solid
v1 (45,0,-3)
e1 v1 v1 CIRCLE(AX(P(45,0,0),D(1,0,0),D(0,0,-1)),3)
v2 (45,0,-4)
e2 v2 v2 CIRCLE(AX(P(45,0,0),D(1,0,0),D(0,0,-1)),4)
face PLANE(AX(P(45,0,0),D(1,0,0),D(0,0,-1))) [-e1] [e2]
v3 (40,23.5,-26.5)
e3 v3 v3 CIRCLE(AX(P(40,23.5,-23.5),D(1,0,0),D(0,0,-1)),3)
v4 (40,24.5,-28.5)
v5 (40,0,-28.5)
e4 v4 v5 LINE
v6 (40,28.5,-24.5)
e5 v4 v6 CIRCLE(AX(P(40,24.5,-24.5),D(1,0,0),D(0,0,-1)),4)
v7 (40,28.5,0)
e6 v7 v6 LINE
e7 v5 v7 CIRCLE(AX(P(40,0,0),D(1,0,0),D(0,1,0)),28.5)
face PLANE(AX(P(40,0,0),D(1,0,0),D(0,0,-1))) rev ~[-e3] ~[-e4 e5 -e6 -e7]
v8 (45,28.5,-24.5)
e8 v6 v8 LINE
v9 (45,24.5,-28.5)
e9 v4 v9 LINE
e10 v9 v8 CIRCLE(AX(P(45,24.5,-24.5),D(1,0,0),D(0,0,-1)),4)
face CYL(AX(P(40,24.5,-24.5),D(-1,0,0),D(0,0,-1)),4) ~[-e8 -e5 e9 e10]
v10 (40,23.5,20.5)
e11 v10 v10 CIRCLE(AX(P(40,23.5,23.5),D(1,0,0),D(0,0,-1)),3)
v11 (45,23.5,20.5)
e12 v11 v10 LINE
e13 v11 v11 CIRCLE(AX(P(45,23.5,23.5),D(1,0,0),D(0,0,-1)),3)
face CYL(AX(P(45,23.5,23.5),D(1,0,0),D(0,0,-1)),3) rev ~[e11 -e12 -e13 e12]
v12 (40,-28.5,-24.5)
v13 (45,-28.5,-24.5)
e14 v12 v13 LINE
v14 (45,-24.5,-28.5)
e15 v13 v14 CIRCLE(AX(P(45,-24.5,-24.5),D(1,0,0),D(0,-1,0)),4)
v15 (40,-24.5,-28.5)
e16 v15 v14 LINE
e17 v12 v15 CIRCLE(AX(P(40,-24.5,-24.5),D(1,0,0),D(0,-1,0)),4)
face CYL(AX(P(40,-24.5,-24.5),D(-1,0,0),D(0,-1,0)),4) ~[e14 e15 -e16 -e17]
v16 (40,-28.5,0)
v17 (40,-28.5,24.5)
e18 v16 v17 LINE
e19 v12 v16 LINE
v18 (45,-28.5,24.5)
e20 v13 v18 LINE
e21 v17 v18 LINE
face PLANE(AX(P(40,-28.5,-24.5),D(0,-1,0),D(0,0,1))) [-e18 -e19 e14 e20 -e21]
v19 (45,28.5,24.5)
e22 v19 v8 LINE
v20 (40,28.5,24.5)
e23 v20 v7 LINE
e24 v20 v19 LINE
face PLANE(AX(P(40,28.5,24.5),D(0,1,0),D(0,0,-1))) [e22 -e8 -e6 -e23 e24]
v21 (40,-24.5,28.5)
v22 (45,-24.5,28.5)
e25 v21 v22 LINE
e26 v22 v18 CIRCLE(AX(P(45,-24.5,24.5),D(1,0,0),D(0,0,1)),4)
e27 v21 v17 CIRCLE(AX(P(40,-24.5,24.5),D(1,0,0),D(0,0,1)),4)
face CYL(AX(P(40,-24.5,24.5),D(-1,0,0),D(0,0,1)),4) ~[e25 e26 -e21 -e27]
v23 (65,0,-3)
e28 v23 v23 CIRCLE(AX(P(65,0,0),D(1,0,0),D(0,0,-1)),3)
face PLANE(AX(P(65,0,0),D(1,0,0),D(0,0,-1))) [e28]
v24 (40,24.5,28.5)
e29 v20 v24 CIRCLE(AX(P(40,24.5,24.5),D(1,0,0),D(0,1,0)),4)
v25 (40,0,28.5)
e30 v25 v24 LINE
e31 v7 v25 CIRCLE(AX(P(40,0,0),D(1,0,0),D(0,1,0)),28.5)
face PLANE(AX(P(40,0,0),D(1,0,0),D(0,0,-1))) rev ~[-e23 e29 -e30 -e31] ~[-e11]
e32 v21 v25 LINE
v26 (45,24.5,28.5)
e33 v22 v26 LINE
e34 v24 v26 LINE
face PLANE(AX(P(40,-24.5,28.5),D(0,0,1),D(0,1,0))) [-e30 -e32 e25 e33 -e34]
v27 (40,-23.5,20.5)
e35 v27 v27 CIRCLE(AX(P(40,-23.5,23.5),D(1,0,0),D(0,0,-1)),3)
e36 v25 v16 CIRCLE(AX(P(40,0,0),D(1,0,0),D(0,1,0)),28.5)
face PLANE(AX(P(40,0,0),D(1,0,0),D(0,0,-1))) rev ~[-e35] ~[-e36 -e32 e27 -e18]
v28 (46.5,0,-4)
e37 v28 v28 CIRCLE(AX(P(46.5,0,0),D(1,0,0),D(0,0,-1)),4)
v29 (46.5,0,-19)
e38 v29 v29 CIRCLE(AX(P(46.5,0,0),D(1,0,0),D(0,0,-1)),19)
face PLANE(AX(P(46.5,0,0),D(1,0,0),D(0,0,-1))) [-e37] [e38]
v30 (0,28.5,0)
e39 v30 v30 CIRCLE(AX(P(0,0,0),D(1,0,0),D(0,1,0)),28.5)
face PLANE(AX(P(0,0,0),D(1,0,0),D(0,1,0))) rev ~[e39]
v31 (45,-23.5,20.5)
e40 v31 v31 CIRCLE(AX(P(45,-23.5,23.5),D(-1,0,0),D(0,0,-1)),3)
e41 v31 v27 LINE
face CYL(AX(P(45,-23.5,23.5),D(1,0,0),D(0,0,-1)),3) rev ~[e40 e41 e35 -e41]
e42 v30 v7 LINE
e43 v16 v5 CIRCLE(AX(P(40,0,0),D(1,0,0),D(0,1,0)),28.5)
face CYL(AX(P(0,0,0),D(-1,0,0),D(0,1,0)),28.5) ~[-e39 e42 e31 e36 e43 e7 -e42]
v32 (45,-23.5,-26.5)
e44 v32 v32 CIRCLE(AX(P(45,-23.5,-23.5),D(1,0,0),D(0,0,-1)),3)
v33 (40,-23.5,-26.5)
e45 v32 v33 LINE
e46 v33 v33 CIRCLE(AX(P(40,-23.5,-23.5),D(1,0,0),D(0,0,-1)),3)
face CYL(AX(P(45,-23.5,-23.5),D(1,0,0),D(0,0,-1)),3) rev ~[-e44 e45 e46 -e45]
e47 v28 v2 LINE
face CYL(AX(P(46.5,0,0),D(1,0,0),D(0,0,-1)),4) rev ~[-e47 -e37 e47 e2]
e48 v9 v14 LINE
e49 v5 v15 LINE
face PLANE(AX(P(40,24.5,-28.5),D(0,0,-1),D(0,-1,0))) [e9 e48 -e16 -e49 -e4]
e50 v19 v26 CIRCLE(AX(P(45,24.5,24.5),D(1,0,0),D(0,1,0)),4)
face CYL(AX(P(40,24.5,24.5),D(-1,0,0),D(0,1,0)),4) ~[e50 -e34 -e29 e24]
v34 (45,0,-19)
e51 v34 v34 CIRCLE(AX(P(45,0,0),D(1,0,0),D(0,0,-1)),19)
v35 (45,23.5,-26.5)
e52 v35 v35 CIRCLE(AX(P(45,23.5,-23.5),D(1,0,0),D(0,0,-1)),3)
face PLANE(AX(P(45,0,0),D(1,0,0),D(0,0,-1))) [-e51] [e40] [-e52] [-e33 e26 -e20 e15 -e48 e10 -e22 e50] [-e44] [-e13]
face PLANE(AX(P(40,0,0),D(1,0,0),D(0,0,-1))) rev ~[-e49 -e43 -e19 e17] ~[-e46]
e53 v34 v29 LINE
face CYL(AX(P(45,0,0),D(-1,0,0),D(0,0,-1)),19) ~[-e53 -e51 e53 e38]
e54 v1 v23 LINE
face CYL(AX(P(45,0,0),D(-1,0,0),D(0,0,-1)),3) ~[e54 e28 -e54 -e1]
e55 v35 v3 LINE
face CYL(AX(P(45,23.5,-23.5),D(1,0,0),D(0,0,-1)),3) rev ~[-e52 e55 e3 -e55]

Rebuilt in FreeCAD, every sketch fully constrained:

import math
import FreeCAD as App
import Part
import Sketcher
Q = App.Units.Quantity

doc = App.newDocument("Part")
params = doc.addObject("Spreadsheet::Sheet", "Params")
for row, (alias, value) in enumerate([
    ("sketch1_diameter", "57 mm"),
    ("pad1_length", "40 mm"),
    ("sketch2_radius", "4 mm"),
    ("sketch2_width", "49 mm"),
    ("pad2_length", "5 mm"),
    ("sketch3_diameter", "38 mm"),
    ("pad3_length", "1.5 mm"),
    ("sketch4_diameter", "8 mm"),
    ("pocket1_length", "1.5 mm"),
    ("sketch5_diameter", "6 mm"),
    ("pad4_length", "20 mm"),
    ("sketch6_diameter", "6 mm"),
    ("pocket2_length", "5 mm"),
], start=1):
    params.set(f"A{row}", alias)
    params.set(f"B{row}", "=" + value)
    params.setAlias(f"B{row}", alias)

body = doc.addObject("PartDesign::Body", "Body")

# Sketch on YZ plane
sketch1 = body.newObject("Sketcher::SketchObject", "Sketch")
sketch1.AttachmentSupport = (doc.getObject("YZ_Plane"), [""])
sketch1.MapMode = "FlatFace"
sketch1.addGeometry(Part.Circle(App.Vector(0, 0, 0), App.Vector(0, 0, 1), 28), False)
sketch1.addConstraint([
    Sketcher.Constraint("Coincident", 0, 3, -1, 1),
    Sketcher.Constraint("Diameter", 0, Q("57 mm")),
])
sketch1.setExpression("Constraints[1]", "Params.sketch1_diameter")
pad1 = body.newObject("PartDesign::Pad", "Pad")
pad1.Profile = sketch1
pad1.setExpression("Length", "Params.pad1_length")

# Sketch on YZ plane
sketch2 = body.newObject("Sketcher::SketchObject", "Sketch001")
sketch2.AttachmentSupport = (doc.getObject("YZ_Plane"), [""])
sketch2.MapMode = "FlatFace"
sketch2.AttachmentOffset = App.Placement(App.Vector(0, 0, 40), App.Rotation())
sketch2.addGeometry([
    Part.LineSegment(App.Vector(28.5, -24.5, 0), App.Vector(28.5, 24.5, 0)),  # 0
    Part.ArcOfCircle(Part.Circle(App.Vector(24.5, 24.5, 0), App.Vector(0, 0, 1), 4), math.radians(0), math.radians(90)),  # 1
    Part.LineSegment(App.Vector(24.5, 28.5, 0), App.Vector(-24.5, 28.5, 0)),  # 2
    Part.ArcOfCircle(Part.Circle(App.Vector(-24.5, 24.5, 0), App.Vector(0, 0, 1), 4), math.radians(90), math.radians(180)),  # 3
    Part.LineSegment(App.Vector(-28.5, 24.5, 0), App.Vector(-28.5, -24.5, 0)),  # 4
    Part.ArcOfCircle(Part.Circle(App.Vector(-24.5, -24.5, 0), App.Vector(0, 0, 1), 4), math.radians(180), math.radians(270)),  # 5
    Part.LineSegment(App.Vector(-24.5, -28.5, 0), App.Vector(24.5, -28.5, 0)),  # 6
    Part.ArcOfCircle(Part.Circle(App.Vector(24.5, -24.5, 0), App.Vector(0, 0, 1), 4), math.radians(-90), math.radians(0)),  # 7
], False)
sketch2.addConstraint([
    Sketcher.Constraint("Tangent", 0, 2, 1, 1),
    Sketcher.Constraint("Tangent", 1, 2, 2, 1),
    Sketcher.Constraint("Tangent", 2, 2, 3, 1),
    Sketcher.Constraint("Tangent", 3, 2, 4, 1),
    Sketcher.Constraint("Tangent", 4, 2, 5, 1),
    Sketcher.Constraint("Tangent", 5, 2, 6, 1),
    Sketcher.Constraint("Tangent", 6, 2, 7, 1),
    Sketcher.Constraint("Tangent", 7, 2, 0, 1),
    Sketcher.Constraint("Vertical", 0),
    Sketcher.Constraint("Horizontal", 2),
    Sketcher.Constraint("Vertical", 4),
    Sketcher.Constraint("Horizontal", 6),
    Sketcher.Constraint("Equal", 1, 3),
    Sketcher.Constraint("Equal", 3, 5),
    Sketcher.Constraint("Equal", 5, 7),
    Sketcher.Constraint("Symmetric", 1, 3, 5, 3, -1, 1),
    Sketcher.Constraint("Equal", 6, 0),
    Sketcher.Constraint("Radius", 1, Q("4 mm")),
    Sketcher.Constraint("DistanceX", 2, 2, 2, 1, Q("49 mm")),
])
sketch2.setExpression("Constraints[17]", "Params.sketch2_radius")
sketch2.setExpression("Constraints[18]", "Params.sketch2_width")
pad2 = body.newObject("PartDesign::Pad", "Pad001")
pad2.Profile = sketch2
pad2.setExpression("Length", "Params.pad2_length")

# Sketch on YZ plane
sketch3 = body.newObject("Sketcher::SketchObject", "Sketch002")
sketch3.AttachmentSupport = (doc.getObject("YZ_Plane"), [""])
sketch3.MapMode = "FlatFace"
sketch3.AttachmentOffset = App.Placement(App.Vector(0, 0, 45), App.Rotation())
sketch3.addGeometry(Part.Circle(App.Vector(0, 0, 0), App.Vector(0, 0, 1), 19), False)
sketch3.addConstraint([
    Sketcher.Constraint("Coincident", 0, 3, -1, 1),
    Sketcher.Constraint("Diameter", 0, Q("38 mm")),
])
sketch3.setExpression("Constraints[1]", "Params.sketch3_diameter")
pad3 = body.newObject("PartDesign::Pad", "Pad002")
pad3.Profile = sketch3
pad3.setExpression("Length", "Params.pad3_length")

# Sketch on YZ plane
sketch4 = body.newObject("Sketcher::SketchObject", "Sketch003")
sketch4.AttachmentSupport = (doc.getObject("YZ_Plane"), [""])
sketch4.MapMode = "FlatFace"
sketch4.AttachmentOffset = App.Placement(App.Vector(0, 0, 46.5), App.Rotation())
sketch4.addGeometry(Part.Circle(App.Vector(0, 0, 0), App.Vector(0, 0, 1), 4), False)
sketch4.addConstraint([
    Sketcher.Constraint("Coincident", 0, 3, -1, 1),
    Sketcher.Constraint("Diameter", 0, Q("8 mm")),
])
sketch4.setExpression("Constraints[1]", "Params.sketch4_diameter")
pocket1 = body.newObject("PartDesign::Pocket", "Pocket")
pocket1.Profile = sketch4
pocket1.setExpression("Length", "Params.pocket1_length")

# Sketch on YZ plane
sketch5 = body.newObject("Sketcher::SketchObject", "Sketch004")
sketch5.AttachmentSupport = (doc.getObject("YZ_Plane"), [""])
sketch5.MapMode = "FlatFace"
sketch5.AttachmentOffset = App.Placement(App.Vector(0, 0, 45), App.Rotation())
sketch5.addGeometry(Part.Circle(App.Vector(0, 0, 0), App.Vector(0, 0, 1), 3), False)
sketch5.addConstraint([
    Sketcher.Constraint("Coincident", 0, 3, -1, 1),
    Sketcher.Constraint("Diameter", 0, Q("6 mm")),
])
sketch5.setExpression("Constraints[1]", "Params.sketch5_diameter")
pad4 = body.newObject("PartDesign::Pad", "Pad003")
pad4.Profile = sketch5
pad4.setExpression("Length", "Params.pad4_length")

# Sketch on YZ plane
sketch6 = body.newObject("Sketcher::SketchObject", "Sketch005")
sketch6.AttachmentSupport = (doc.getObject("YZ_Plane"), [""])
sketch6.MapMode = "FlatFace"
sketch6.AttachmentOffset = App.Placement(App.Vector(0, 0, 45), App.Rotation())
sketch6.addGeometry([
    Part.Circle(App.Vector(-23.5, 23.5, 0), App.Vector(0, 0, 1), 3),
    Part.Circle(App.Vector(-23.5, -23.5, 0), App.Vector(0, 0, 1), 3),
    Part.Circle(App.Vector(23.5, 23.5, 0), App.Vector(0, 0, 1), 3),
    Part.Circle(App.Vector(23.5, -23.5, 0), App.Vector(0, 0, 1), 3),
], False)
sketch6.addConstraint([
    Sketcher.Constraint("Equal", 0, 1),
    Sketcher.Constraint("Equal", 1, 2),
    Sketcher.Constraint("Equal", 2, 3),
    Sketcher.Constraint("Symmetric", 1, 3, 2, 3, -1, 1),
    Sketcher.Constraint("Symmetric", 0, 3, 3, 3, -1, 1),
    Sketcher.Constraint("Symmetric", 0, 3, 2, 3, -2),
    Sketcher.Constraint("Diameter", 0, Q("6 mm")),
    Sketcher.Constraint("DistanceY", 1, 3, 0, 3, Q("47 mm")),
    Sketcher.Constraint("DistanceX", 0, 3, 2, 3, Q("47 mm")),
])
sketch6.setExpression("Constraints[6]", "Params.sketch6_diameter")
pocket2 = body.newObject("PartDesign::Pocket", "Pocket001")
pocket2.Profile = sketch6
pocket2.setExpression("Length", "Params.pocket2_length")

doc.recompute()
